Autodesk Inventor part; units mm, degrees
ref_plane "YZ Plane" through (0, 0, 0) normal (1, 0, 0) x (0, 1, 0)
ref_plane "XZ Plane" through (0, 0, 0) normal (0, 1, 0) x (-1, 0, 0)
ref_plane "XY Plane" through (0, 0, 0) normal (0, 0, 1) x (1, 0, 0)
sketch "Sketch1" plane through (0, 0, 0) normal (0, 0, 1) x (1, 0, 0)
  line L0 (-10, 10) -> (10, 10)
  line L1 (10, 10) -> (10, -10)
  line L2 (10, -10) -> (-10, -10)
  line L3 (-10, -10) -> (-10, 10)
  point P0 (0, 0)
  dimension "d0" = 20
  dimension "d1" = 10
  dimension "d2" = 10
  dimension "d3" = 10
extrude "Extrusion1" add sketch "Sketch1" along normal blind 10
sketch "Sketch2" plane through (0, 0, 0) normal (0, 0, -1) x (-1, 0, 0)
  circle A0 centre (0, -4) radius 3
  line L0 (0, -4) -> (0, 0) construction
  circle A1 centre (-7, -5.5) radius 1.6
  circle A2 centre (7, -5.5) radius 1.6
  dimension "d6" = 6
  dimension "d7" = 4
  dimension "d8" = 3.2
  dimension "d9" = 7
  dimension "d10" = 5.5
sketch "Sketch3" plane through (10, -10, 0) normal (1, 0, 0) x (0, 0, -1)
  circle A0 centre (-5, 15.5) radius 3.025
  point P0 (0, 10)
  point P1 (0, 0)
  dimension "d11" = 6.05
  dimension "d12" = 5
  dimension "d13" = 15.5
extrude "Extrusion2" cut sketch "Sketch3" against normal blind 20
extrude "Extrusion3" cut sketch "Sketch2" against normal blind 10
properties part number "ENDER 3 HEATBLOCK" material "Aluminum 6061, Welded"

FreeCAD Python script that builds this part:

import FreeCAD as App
import Part
import Sketcher

V = App.Vector


def add_polygon(sketch, points):
    """Adds a closed chain of lines whose ends are joined by coincident constraints."""
    first, n = sketch.GeometryCount, len(points)
    for a, b in zip(points, points[1:] + points[:1]):
        sketch.addGeometry(Part.LineSegment(App.Vector(*a, 0), App.Vector(*b, 0)), False)
    for i in range(n):
        sketch.addConstraint(Sketcher.Constraint("Coincident", first + i, 2, first + (i + 1) % n, 1))

doc = App.newDocument("Part")
body = doc.addObject("PartDesign::Body", "Body")

sketch1 = doc.addObject("Sketcher::SketchObject", "Sketch")
body.addObject(sketch1)
sketch1.AttachmentSupport = (doc.XY_Plane, [""])
sketch1.MapMode = "FlatFace"
add_polygon(sketch1, [(10, 10), (-10, 10), (-10, -10), (10, -10)])
sketch1.addConstraint([
    Sketcher.Constraint("Horizontal", 0),
    Sketcher.Constraint("Vertical", 1),
    Sketcher.Constraint("Horizontal", 2),
    Sketcher.Constraint("Vertical", 3),
    Sketcher.Constraint("Symmetric", 0, 2, 2, 2, -1, 1),
    Sketcher.Constraint("Equal", 2, 1),
    Sketcher.Constraint("DistanceX", 0, 2, 0, 1, 20.0),
])
pad1 = doc.addObject("PartDesign::Pad", "Pad")
body.addObject(pad1)
pad1.Profile = sketch1
pad1.Length = 10

sketch2 = doc.addObject("Sketcher::SketchObject", "Sketch001")
body.addObject(sketch2)
sketch2.AttachmentSupport = (doc.YZ_Plane, [""])
sketch2.MapMode = "FlatFace"
sketch2.AttachmentOffset = App.Placement(V(0, 0, 10), App.Rotation())
sketch2.addGeometry(Part.Circle(V(5.5, 5, 0), V(0, 0, 1), 3), False)
sketch2.addConstraint([
    Sketcher.Constraint("Diameter", 0, 6.05),
    Sketcher.Constraint("DistanceY", -1, 1, 0, 3, 5.0),
    Sketcher.Constraint("DistanceX", -1, 1, 0, 3, 5.5),
])
pocket1 = doc.addObject("PartDesign::Pocket", "Pocket")
body.addObject(pocket1)
pocket1.Profile = sketch2
pocket1.Length = 20

sketch3 = doc.addObject("Sketcher::SketchObject", "Sketch002")
body.addObject(sketch3)
sketch3.AttachmentSupport = (doc.XY_Plane, [""])
sketch3.MapMode = "FlatFace"
sketch3.addGeometry([
    Part.Circle(V(0, -4, 0), V(0, 0, 1), 3),
    Part.Circle(V(7, -5.5, 0), V(0, 0, 1), 1.6),
    Part.Circle(V(-7, -5.5, 0), V(0, 0, 1), 1.6),
], False)
sketch3.addConstraint([
    Sketcher.Constraint("Equal", 1, 2),
    Sketcher.Constraint("Symmetric", 1, 3, 2, 3, -2),
    Sketcher.Constraint("PointOnObject", 0, 3, -2),
    Sketcher.Constraint("Diameter", 0, 6.0),
    Sketcher.Constraint("Diameter", 1, 3.2),
    Sketcher.Constraint("DistanceY", 0, 3, -1, 1, 4.0),
    Sketcher.Constraint("DistanceX", -1, 1, 1, 3, 7.0),
    Sketcher.Constraint("DistanceY", 1, 3, -1, 1, 5.5),
])
pocket2 = doc.addObject("PartDesign::Pocket", "Pocket001")
body.addObject(pocket2)
pocket2.Profile = sketch3
pocket2.Length = 10
pocket2.Reversed = True

doc.recompute()
